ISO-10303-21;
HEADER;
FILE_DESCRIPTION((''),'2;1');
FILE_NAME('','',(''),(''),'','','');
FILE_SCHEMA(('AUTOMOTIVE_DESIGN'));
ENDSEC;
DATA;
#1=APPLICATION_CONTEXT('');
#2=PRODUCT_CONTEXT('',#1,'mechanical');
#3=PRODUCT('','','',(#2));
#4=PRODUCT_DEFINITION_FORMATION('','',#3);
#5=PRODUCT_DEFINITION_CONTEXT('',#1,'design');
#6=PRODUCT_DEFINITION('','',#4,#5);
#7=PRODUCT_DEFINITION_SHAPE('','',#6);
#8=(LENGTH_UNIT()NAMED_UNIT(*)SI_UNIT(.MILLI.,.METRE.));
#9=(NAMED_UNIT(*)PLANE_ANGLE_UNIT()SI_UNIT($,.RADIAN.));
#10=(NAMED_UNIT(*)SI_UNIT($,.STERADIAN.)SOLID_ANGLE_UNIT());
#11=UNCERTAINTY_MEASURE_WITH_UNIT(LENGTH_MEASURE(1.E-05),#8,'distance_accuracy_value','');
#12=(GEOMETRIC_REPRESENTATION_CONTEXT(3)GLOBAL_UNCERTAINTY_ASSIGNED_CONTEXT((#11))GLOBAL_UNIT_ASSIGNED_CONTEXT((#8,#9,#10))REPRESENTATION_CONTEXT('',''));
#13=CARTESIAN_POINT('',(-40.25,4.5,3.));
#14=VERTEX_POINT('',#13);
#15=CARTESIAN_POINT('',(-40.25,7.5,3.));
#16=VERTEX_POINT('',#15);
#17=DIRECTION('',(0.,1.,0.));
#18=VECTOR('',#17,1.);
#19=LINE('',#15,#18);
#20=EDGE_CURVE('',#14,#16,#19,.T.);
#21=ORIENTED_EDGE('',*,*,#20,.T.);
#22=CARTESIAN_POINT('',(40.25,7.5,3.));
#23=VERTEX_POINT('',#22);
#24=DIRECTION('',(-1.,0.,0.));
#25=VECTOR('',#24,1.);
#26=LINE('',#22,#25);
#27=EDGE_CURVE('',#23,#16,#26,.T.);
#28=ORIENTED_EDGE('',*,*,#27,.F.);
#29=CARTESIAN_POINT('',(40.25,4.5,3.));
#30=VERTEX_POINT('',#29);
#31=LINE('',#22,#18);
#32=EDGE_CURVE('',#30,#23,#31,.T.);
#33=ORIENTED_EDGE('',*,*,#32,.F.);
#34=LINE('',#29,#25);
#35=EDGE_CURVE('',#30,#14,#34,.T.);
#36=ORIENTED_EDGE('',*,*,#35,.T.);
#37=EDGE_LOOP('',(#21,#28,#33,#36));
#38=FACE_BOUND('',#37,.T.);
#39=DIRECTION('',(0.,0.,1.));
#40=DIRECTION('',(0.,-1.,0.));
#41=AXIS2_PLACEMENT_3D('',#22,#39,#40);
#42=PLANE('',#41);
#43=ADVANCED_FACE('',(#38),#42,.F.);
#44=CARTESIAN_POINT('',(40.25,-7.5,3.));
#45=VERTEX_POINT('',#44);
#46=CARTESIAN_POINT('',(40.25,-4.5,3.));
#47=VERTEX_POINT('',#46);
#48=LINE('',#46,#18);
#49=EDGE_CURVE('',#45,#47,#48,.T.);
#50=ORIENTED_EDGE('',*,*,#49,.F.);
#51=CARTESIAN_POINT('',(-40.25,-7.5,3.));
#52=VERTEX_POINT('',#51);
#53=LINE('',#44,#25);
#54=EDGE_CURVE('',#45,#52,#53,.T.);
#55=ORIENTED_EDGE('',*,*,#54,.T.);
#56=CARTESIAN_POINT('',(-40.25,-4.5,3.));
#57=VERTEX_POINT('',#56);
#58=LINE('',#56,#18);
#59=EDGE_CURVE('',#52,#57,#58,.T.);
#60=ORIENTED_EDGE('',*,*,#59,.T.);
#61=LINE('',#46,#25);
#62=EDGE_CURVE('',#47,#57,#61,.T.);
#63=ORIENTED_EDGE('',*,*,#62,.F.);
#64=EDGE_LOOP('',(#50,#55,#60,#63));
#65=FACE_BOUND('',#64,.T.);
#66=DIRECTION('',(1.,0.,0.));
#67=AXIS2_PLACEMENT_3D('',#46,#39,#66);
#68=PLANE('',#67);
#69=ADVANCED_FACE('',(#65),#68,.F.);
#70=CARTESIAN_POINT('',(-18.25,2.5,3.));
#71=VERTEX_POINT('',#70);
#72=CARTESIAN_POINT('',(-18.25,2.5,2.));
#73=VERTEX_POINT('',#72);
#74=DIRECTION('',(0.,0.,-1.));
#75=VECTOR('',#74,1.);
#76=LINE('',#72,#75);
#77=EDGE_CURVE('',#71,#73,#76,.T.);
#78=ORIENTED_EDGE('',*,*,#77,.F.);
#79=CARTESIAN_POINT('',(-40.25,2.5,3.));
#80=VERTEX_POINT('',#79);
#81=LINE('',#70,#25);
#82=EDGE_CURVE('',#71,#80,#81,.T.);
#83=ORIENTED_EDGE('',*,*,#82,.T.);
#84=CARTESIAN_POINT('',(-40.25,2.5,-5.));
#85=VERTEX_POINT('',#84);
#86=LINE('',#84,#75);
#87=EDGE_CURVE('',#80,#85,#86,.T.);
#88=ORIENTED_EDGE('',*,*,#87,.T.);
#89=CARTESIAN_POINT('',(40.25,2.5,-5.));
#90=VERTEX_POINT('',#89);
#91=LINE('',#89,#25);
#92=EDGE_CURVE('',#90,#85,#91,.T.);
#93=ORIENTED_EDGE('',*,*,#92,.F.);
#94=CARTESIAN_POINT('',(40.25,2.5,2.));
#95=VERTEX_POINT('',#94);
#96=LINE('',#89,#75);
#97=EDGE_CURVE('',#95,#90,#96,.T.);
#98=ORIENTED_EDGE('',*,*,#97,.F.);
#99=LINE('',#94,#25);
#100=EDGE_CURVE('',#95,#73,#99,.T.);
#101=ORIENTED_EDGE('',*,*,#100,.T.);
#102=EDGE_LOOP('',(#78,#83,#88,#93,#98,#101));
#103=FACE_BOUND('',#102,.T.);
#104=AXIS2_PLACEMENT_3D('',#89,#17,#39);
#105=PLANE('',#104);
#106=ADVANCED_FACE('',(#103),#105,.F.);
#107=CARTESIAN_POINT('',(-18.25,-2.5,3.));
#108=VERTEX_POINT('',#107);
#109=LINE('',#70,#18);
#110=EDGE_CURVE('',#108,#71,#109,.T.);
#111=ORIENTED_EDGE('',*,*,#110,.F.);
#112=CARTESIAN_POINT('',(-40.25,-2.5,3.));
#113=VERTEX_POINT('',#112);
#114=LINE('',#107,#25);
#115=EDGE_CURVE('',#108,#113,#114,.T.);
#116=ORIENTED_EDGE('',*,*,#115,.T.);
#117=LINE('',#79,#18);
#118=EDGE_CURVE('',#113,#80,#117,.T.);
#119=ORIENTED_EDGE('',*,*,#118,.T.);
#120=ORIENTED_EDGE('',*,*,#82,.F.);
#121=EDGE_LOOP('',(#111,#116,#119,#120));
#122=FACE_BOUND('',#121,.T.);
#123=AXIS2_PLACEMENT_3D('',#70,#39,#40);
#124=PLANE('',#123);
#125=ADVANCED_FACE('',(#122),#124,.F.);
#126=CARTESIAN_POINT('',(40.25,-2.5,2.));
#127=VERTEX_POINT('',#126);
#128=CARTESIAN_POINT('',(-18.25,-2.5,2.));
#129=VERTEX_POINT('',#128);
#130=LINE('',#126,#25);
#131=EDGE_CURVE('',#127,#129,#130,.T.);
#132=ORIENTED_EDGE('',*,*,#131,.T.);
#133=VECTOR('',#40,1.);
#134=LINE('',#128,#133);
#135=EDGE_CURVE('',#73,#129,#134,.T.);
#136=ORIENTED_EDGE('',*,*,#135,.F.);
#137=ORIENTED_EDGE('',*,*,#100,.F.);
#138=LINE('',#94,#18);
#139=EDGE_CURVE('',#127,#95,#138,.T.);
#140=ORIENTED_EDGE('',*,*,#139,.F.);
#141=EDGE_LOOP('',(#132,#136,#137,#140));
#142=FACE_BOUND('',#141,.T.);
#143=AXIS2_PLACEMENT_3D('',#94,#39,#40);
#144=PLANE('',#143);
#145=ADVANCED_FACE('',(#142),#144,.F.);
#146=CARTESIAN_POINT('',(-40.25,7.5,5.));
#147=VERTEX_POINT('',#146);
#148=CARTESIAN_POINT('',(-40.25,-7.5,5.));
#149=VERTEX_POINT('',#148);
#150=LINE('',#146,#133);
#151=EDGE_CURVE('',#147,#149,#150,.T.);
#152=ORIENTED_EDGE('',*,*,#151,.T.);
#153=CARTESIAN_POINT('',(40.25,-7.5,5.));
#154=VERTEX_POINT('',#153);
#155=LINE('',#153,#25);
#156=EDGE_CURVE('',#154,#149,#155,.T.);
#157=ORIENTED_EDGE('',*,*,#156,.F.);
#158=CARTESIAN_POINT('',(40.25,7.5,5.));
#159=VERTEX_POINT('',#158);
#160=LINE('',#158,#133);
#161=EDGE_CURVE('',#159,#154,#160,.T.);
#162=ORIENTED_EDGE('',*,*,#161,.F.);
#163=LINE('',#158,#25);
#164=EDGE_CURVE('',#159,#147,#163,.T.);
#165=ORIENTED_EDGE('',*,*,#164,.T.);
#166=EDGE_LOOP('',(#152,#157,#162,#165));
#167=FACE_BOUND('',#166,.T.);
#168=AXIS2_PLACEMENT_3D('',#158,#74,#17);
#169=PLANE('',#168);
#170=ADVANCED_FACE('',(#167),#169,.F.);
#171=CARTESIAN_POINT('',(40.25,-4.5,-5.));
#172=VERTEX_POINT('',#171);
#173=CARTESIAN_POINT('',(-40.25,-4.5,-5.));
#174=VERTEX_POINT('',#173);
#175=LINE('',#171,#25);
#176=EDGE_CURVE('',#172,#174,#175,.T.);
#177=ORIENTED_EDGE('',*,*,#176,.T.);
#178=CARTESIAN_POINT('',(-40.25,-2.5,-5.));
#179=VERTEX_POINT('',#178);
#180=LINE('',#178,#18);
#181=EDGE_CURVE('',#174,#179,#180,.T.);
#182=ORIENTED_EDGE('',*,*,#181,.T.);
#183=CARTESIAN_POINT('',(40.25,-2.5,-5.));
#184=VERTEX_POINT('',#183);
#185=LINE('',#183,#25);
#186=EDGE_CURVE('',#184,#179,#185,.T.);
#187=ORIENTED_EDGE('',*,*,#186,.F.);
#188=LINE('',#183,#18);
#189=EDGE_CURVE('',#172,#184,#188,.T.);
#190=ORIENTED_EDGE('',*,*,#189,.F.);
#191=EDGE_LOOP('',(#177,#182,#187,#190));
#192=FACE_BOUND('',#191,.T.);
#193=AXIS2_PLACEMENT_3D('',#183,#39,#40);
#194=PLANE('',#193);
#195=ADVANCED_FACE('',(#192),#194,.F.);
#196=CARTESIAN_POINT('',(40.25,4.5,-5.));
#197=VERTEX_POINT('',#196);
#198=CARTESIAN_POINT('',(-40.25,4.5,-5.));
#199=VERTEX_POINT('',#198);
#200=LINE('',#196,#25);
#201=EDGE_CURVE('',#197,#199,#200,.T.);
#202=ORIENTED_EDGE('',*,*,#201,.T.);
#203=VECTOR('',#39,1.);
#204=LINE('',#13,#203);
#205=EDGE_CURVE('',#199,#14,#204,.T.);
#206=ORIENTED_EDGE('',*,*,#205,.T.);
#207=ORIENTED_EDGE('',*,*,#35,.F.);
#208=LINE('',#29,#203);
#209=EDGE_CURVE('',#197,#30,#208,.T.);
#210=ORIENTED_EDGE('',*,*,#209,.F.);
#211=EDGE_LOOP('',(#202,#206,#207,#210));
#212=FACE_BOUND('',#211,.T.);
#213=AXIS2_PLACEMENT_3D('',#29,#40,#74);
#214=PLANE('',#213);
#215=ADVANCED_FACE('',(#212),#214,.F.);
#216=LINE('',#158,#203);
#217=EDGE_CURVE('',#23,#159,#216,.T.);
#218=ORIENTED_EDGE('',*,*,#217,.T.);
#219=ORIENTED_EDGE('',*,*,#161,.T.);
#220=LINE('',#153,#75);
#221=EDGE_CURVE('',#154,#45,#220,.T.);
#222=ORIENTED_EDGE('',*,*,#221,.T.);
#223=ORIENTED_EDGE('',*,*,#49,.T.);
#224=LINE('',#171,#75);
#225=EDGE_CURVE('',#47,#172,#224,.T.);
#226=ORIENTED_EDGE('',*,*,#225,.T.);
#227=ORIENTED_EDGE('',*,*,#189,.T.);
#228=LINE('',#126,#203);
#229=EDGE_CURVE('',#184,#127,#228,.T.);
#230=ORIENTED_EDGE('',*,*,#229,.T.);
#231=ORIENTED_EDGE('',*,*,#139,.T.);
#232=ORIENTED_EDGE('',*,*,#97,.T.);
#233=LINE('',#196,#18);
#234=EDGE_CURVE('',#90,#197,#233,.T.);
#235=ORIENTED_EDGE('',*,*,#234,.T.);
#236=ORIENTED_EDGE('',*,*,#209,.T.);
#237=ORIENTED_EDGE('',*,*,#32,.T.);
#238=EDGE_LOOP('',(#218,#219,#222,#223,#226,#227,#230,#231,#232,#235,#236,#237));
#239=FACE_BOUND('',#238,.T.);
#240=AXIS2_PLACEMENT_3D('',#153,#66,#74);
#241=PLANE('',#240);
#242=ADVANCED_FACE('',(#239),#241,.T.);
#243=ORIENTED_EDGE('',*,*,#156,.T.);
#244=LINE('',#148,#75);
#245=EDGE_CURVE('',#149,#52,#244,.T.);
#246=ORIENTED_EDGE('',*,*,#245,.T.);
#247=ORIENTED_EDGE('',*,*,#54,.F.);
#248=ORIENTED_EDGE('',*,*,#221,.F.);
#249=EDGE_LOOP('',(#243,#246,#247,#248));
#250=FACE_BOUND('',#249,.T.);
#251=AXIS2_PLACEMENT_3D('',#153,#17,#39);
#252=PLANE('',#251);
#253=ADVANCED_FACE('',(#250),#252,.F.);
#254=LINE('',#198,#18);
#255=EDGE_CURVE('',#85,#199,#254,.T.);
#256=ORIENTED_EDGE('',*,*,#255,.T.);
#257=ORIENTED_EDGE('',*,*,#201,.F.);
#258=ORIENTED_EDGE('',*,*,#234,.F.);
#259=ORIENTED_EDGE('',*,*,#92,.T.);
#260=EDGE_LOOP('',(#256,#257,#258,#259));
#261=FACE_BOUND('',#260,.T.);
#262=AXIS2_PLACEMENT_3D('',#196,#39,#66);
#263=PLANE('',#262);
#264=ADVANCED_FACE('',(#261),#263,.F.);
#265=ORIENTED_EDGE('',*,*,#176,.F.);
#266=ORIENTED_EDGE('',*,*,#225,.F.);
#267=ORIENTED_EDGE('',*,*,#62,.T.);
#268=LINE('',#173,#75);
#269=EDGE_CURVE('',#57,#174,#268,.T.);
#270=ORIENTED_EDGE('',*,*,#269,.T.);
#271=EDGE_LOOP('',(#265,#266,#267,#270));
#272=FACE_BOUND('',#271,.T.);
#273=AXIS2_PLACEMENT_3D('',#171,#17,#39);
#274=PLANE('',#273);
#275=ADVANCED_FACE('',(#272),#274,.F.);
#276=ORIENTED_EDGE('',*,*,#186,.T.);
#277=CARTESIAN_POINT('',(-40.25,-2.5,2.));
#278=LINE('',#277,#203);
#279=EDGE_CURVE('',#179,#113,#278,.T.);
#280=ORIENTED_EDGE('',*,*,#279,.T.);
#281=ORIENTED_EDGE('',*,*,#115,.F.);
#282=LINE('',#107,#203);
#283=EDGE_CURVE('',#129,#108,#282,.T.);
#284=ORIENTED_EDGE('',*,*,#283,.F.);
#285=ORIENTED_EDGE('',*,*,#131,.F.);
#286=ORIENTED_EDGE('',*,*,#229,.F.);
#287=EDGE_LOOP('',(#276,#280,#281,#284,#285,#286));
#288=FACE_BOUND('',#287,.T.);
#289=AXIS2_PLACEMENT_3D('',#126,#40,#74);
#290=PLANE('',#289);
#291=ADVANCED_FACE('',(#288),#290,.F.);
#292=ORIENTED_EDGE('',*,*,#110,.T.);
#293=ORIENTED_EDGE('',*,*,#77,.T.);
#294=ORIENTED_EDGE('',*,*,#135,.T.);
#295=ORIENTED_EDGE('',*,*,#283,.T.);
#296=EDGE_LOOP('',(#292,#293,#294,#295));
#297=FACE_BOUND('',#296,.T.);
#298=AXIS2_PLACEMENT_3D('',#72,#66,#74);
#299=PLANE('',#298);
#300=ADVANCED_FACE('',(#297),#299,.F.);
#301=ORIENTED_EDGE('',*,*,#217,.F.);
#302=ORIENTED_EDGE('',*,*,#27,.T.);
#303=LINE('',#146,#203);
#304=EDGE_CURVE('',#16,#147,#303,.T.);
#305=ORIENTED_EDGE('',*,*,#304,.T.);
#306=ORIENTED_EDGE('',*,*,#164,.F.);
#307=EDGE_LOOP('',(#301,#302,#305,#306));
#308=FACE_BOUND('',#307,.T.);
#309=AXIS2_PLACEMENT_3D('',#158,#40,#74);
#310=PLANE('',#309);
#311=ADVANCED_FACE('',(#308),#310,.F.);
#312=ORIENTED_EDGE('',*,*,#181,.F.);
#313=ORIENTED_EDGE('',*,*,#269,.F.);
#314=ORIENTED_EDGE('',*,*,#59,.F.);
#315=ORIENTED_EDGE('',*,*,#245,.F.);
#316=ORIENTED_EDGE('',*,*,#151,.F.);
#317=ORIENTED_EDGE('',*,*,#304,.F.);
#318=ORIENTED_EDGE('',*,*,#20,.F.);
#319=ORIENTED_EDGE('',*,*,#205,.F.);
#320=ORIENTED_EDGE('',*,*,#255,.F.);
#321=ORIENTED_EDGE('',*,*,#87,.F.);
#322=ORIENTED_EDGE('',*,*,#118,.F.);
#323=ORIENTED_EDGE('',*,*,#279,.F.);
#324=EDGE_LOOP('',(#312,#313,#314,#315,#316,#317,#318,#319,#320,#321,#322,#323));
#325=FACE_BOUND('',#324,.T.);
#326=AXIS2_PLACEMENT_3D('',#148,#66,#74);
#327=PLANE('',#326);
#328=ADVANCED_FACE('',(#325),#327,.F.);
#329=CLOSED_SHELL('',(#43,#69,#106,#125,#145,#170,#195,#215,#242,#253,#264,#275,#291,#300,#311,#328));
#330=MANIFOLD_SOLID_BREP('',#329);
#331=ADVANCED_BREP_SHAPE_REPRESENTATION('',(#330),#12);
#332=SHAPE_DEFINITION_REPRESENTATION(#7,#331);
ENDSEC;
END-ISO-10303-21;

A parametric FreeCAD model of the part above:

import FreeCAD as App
import Part
import Sketcher


def add_polygon(sketch, points):
    """Adds a closed chain of lines whose ends are joined by coincident constraints."""
    first, n = sketch.GeometryCount, len(points)
    for a, b in zip(points, points[1:] + points[:1]):
        sketch.addGeometry(Part.LineSegment(App.Vector(*a, 0), App.Vector(*b, 0)), False)
    for i in range(n):
        sketch.addConstraint(Sketcher.Constraint("Coincident", first + i, 2, first + (i + 1) % n, 1))

doc = App.newDocument("Part")
body = doc.addObject("PartDesign::Body", "Body")

# Sketch on YZ plane
sketch1 = doc.addObject("Sketcher::SketchObject", "Sketch")
body.addObject(sketch1)
sketch1.AttachmentSupport = (doc.YZ_Plane, [""])
sketch1.MapMode = "FlatFace"
add_polygon(sketch1, [(4.5, 3), (7.5, 3), (7.5, 5), (-7.5, 5), (-7.5, 3), (-4.5, 3), (-4.5, -5), (-2.5, -5), (-2.5, 2), (2.5, 2), (2.5, -5), (4.5, -5)])  # lines 0-11
sketch1.addConstraint([
    Sketcher.Constraint("Horizontal", 0),
    Sketcher.Constraint("Vertical", 1),
    Sketcher.Constraint("Horizontal", 2),
    Sketcher.Constraint("Vertical", 3),
    Sketcher.Constraint("Horizontal", 4),
    Sketcher.Constraint("Vertical", 5),
    Sketcher.Constraint("Horizontal", 6),
    Sketcher.Constraint("Vertical", 7),
    Sketcher.Constraint("Horizontal", 8),
    Sketcher.Constraint("Vertical", 9),
    Sketcher.Constraint("Horizontal", 10),
    Sketcher.Constraint("Vertical", 11),
    Sketcher.Constraint("Symmetric", 0, 2, 3, 2, -2),
    Sketcher.Constraint("Symmetric", 6, 2, 9, 2, -2),
    Sketcher.Constraint("Equal", 0, 4),
    Sketcher.Constraint("Equal", 10, 1),
    Sketcher.Constraint("DistanceX", 0, 1, 0, 2, 3.0),
    Sketcher.Constraint("DistanceX", 2, 2, 2, 1, 15.0),
    Sketcher.Constraint("DistanceX", 6, 1, 6, 2, 2.0),
    Sketcher.Constraint("DistanceY", 5, 2, 5, 1, 8.0),
    Sketcher.Constraint("DistanceY", 7, 1, 7, 2, 7.0),
    Sketcher.Constraint("DistanceY", -1, 1, 0, 2, 3.0),
])
pad1 = doc.addObject("PartDesign::Pad", "Pad")
body.addObject(pad1)
pad1.Profile = sketch1
pad1.Length = 80.5
pad1.Midplane = True

# Sketch on YZ plane
sketch2 = doc.addObject("Sketcher::SketchObject", "Sketch001")
body.addObject(sketch2)
sketch2.AttachmentSupport = (doc.YZ_Plane, [""])
sketch2.MapMode = "FlatFace"
sketch2.AttachmentOffset = App.Placement(App.Vector(0, 0, -40.25), App.Rotation())
add_polygon(sketch2, [(2.5, 2), (-2.5, 2), (-2.5, 3), (2.5, 3)])  # lines 0-3
sketch2.addConstraint([
    Sketcher.Constraint("Horizontal", 0),
    Sketcher.Constraint("Vertical", 1),
    Sketcher.Constraint("Horizontal", 2),
    Sketcher.Constraint("Vertical", 3),
    Sketcher.Constraint("DistanceX", 0, 2, 0, 1, 5.0),
    Sketcher.Constraint("DistanceY", 1, 1, 1, 2, 1.0),
    Sketcher.Constraint("DistanceY", -1, 1, 0, 2, 2.0),
    Sketcher.Constraint("DistanceX", 0, 2, -1, 1, 2.5),
])
pocket1 = doc.addObject("PartDesign::Pocket", "Pocket")
body.addObject(pocket1)
pocket1.Profile = sketch2
pocket1.Length = 22
pocket1.Reversed = True

doc.recompute()
